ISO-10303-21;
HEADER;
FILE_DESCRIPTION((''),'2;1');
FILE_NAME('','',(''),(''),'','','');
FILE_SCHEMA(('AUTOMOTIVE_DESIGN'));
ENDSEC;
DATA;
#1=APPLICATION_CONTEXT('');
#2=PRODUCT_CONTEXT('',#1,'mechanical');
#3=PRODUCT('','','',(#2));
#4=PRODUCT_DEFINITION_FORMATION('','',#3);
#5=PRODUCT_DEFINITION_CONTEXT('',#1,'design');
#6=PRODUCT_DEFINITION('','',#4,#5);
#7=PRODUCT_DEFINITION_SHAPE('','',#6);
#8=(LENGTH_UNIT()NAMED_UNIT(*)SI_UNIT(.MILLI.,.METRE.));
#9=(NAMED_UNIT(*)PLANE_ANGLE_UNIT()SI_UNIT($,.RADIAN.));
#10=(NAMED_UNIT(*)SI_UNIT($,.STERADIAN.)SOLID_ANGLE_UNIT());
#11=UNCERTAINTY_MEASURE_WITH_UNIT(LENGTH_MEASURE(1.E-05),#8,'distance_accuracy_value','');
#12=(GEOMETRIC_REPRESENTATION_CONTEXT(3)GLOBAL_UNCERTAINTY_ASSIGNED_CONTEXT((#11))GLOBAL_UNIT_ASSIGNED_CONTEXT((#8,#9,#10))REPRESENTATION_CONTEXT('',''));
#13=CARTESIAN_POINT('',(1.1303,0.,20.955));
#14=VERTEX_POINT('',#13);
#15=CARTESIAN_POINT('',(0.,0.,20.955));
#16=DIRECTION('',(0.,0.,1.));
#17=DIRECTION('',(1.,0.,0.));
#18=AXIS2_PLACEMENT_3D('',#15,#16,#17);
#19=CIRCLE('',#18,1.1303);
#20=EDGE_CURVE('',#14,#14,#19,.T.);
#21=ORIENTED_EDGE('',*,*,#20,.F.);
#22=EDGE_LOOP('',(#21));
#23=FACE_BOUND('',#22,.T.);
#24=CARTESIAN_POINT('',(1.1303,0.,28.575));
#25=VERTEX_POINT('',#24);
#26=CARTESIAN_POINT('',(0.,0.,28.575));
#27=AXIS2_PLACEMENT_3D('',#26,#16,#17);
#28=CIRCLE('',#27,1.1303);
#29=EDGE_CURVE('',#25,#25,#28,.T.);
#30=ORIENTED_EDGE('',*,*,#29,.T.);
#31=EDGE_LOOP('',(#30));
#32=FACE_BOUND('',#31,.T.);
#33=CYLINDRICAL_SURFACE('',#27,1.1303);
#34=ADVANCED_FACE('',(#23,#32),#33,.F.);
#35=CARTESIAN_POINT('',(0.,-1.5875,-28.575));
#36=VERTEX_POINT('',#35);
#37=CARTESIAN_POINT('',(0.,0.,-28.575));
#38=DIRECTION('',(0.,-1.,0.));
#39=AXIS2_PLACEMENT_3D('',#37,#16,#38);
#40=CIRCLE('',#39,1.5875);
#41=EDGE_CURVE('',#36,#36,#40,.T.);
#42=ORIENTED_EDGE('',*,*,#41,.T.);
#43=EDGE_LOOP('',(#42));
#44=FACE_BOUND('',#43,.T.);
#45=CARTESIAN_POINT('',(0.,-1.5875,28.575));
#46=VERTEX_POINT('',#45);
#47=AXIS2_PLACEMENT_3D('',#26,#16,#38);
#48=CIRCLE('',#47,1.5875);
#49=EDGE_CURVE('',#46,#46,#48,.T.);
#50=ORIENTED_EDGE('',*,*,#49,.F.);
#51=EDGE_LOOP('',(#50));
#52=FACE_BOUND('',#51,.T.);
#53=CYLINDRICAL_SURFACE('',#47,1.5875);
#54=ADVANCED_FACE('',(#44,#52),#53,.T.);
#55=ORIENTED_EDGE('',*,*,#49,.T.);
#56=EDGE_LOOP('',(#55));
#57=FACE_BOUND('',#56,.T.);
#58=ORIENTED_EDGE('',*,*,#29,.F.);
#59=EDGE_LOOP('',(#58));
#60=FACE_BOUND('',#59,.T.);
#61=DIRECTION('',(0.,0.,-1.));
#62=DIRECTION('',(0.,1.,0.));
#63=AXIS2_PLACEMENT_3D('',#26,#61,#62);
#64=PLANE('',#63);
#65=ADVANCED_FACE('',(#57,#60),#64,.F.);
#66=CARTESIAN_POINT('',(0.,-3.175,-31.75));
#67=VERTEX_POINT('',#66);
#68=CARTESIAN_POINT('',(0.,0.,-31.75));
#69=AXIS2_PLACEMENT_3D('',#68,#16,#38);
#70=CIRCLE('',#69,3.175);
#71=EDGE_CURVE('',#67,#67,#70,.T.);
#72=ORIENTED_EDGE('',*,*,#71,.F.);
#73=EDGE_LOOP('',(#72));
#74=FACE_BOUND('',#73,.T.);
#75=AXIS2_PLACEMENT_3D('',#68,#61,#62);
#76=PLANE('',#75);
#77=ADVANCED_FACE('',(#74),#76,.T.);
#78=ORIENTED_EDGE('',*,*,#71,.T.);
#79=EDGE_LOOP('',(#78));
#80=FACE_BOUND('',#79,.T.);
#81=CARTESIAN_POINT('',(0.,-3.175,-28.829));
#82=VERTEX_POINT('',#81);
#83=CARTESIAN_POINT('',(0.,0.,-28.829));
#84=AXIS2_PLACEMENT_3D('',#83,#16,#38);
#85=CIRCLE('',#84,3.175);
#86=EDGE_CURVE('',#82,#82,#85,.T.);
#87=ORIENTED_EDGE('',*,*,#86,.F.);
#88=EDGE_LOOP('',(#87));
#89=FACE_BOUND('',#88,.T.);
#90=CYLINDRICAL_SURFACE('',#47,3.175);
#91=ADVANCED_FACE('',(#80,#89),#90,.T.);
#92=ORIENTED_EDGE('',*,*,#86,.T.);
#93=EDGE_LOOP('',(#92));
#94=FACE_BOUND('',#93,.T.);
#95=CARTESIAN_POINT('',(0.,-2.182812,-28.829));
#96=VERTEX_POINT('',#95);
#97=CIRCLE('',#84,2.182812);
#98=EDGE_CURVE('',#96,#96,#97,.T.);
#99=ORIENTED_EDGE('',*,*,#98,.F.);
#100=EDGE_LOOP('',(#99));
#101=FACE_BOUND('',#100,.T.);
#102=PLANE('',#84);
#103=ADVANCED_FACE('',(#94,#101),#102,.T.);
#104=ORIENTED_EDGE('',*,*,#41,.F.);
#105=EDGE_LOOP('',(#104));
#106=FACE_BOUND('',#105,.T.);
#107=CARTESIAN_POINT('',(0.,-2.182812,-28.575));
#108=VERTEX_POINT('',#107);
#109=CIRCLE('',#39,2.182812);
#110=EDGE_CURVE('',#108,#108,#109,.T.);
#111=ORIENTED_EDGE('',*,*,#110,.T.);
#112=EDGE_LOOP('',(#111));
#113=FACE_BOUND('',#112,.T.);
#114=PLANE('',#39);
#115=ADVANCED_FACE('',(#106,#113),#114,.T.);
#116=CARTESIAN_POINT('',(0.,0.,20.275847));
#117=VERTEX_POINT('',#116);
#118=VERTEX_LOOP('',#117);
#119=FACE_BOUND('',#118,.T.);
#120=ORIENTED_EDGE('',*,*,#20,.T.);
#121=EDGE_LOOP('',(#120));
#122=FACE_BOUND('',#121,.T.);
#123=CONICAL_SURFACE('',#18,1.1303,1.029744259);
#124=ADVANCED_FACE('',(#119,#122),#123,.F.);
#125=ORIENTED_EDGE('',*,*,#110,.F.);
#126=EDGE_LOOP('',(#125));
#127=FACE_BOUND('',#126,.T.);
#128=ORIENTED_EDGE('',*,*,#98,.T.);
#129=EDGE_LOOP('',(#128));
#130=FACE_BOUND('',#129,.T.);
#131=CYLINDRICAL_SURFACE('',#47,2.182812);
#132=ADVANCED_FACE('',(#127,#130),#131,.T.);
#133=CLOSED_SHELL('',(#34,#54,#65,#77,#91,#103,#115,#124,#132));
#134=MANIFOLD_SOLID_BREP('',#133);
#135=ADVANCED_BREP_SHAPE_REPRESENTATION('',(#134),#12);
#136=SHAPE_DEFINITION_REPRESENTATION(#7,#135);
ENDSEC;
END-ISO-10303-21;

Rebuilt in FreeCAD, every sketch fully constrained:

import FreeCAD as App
import Part
import Sketcher
from FreeCAD import Vector
Q = App.Units.Quantity


def add_polygon(sketch, points):
    """Adds a closed chain of lines whose ends are joined by coincident constraints."""
    first, n = sketch.GeometryCount, len(points)
    for a, b in zip(points, points[1:] + points[:1]):
        sketch.addGeometry(Part.LineSegment(App.Vector(*a, 0), App.Vector(*b, 0)), False)
    for i in range(n):
        sketch.addConstraint(Sketcher.Constraint("Coincident", first + i, 2, first + (i + 1) % n, 1))

doc = App.newDocument("Part")
params = doc.addObject("Spreadsheet::Sheet", "Params")
for row, (alias, value) in enumerate([
    ("sketch1_height", "0.01 in"),
    ("sketch1_height2", "2.25 in"),
    ("sketch1_width", "0.0625 in"),
    ("sketch1_width2", "0.125 in"),
    ("sketch1_height3", "2.375 in"),
    ("revolution_angle", "360 deg"),
    ("sketch2_diameter", "0.089 in"),
    ("hole_diameter", "0.089 in"),
    ("hole_depth", "0.3 in"),
], start=1):
    params.set(f"A{row}", alias)
    params.set(f"B{row}", "=" + value)
    params.setAlias(f"B{row}", alias)

body = doc.addObject("PartDesign::Body", "Body")

# Sketch on YZ plane
sketch1 = body.newObject("Sketcher::SketchObject", "Sketch")
sketch1.AttachmentSupport = (doc.getObject("YZ_Plane"), [""])
sketch1.MapMode = "FlatFace"
add_polygon(sketch1, [(1.59, 28.57), (0, 28.57), (0, -31.75), (3.17, -31.75), (3.17, -28.83), (2.18, -28.83), (2.18, -28.57), (1.59, -28.57)])  # lines 0-7
sketch1.addConstraint(Sketcher.Constraint("Horizontal", 0))
sketch1.addConstraint(Sketcher.Constraint("Vertical", 1))
sketch1.addConstraint(Sketcher.Constraint("Horizontal", 2))
sketch1.addConstraint(Sketcher.Constraint("Vertical", 3))
sketch1.addConstraint(Sketcher.Constraint("Horizontal", 4))
sketch1.addConstraint(Sketcher.Constraint("Vertical", 5))
sketch1.addConstraint(Sketcher.Constraint("Horizontal", 6))
sketch1.addConstraint(Sketcher.Constraint("Vertical", 7))
sketch1.addConstraint(Sketcher.Constraint("PointOnObject", 0, 2, -2))
sketch1.addConstraint(Sketcher.Constraint("DistanceY", 5, 1, 5, 2, Q("0.01 in")))
sketch1.addConstraint(Sketcher.Constraint("DistanceY", 7, 1, 7, 2, Q("2.25 in")))
sketch1.addConstraint(Sketcher.Constraint("DistanceX", 0, 2, 0, 1, Q("0.0625 in")))
sketch1.addConstraint(Sketcher.Constraint("DistanceX", 2, 1, 2, 2, Q("0.125 in")))
sketch1.addConstraint(Sketcher.Constraint("DistanceY", 1, 2, 1, 1, Q("2.375 in")))
sketch1.addConstraint(Sketcher.Constraint("DistanceY", 1, 2, -1, 1, Q("1.25 in")))
sketch1.addConstraint(Sketcher.Constraint("DistanceX", 4, 2, 4, 1, Q("0.992188 mm")))
sketch1.setExpression("Constraints[17]", "Params.sketch1_height")
sketch1.setExpression("Constraints[18]", "Params.sketch1_height2")
sketch1.setExpression("Constraints[19]", "Params.sketch1_width")
sketch1.setExpression("Constraints[20]", "Params.sketch1_width2")
sketch1.setExpression("Constraints[21]", "Params.sketch1_height3")
revolution = body.newObject("PartDesign::Revolution", "Revolution")
revolution.Profile = sketch1
revolution.ReferenceAxis = (sketch1, ["V_Axis"])
revolution.setExpression("Angle", "Params.revolution_angle")

# Sketch on XY plane
sketch2 = body.newObject("Sketcher::SketchObject", "Sketch001")
sketch2.AttachmentSupport = (doc.getObject("XY_Plane"), [""])
sketch2.MapMode = "FlatFace"
sketch2.AttachmentOffset = App.Placement(Vector(0, 0, 1.125 * 25.4), App.Rotation())
sketch2.addGeometry(Part.Circle(Vector(0, 0, 0), Vector(0, 0, 1), 1.1), False)
sketch2.addConstraint(Sketcher.Constraint("Coincident", 0, 3, -1, 1))
sketch2.addConstraint(Sketcher.Constraint("Diameter", 0, Q("0.089 in")))
sketch2.setExpression("Constraints[1]", "Params.sketch2_diameter")
doc.recompute()
hole = body.newObject("PartDesign::Hole", "Hole")
hole.Profile = sketch2
hole.ThreadType = "None"
hole.setExpression("Diameter", "Params.hole_diameter")
hole.DepthType = "Dimension"
hole.setExpression("Depth", "Params.hole_depth")
hole.DrillPoint = "Angled"
hole.DrillPointAngle = 118

doc.recompute()
